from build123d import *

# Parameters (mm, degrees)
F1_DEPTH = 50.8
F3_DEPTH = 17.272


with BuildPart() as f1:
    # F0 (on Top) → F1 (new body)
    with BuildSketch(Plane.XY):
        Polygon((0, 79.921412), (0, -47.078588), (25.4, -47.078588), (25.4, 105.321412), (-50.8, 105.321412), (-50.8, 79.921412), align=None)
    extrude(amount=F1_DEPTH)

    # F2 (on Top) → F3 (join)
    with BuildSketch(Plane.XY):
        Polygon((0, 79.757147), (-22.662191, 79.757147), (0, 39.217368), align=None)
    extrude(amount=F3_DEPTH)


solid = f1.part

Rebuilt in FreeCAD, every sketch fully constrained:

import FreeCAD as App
import Part
import Sketcher

V = App.Vector
Q = App.Units.Quantity


def add_polygon(sketch, points):
    """Adds a closed chain of lines whose ends are joined by coincident constraints."""
    first, n = sketch.GeometryCount, len(points)
    for a, b in zip(points, points[1:] + points[:1]):
        sketch.addGeometry(Part.LineSegment(App.Vector(*a, 0), App.Vector(*b, 0)), False)
    for i in range(n):
        sketch.addConstraint(Sketcher.Constraint("Coincident", first + i, 2, first + (i + 1) % n, 1))

doc = App.newDocument("Part")
body = doc.addObject("PartDesign::Body", "Body")

sketch1 = body.newObject("Sketcher::SketchObject", "Sketch")
sketch1.AttachmentSupport = (doc.getObject("XY_Plane"), [""])
sketch1.MapMode = "FlatFace"
add_polygon(sketch1, [(0, 79.921412), (0, -47.078588), (25.4, -47.078588), (25.4, 105.321412), (-50.8, 105.321412), (-50.8, 79.921412)])
sketch1.addConstraint(Sketcher.Constraint("Vertical", 0))
sketch1.addConstraint(Sketcher.Constraint("Horizontal", 1))
sketch1.addConstraint(Sketcher.Constraint("Vertical", 2))
sketch1.addConstraint(Sketcher.Constraint("Horizontal", 3))
sketch1.addConstraint(Sketcher.Constraint("Vertical", 4))
sketch1.addConstraint(Sketcher.Constraint("Horizontal", 5))
sketch1.addConstraint(Sketcher.Constraint("PointOnObject", 0, 2, -2))
sketch1.addConstraint(Sketcher.Constraint("Equal", 1, 4))
sketch1.addConstraint(Sketcher.Constraint("DistanceX", 1, 1, 1, 2, Q("1 in")))
sketch1.addConstraint(Sketcher.Constraint("DistanceX", 3, 2, 3, 1, Q("3 in")))
sketch1.addConstraint(Sketcher.Constraint("DistanceY", 0, 2, 0, 1, Q("5 in")))
sketch1.addConstraint(Sketcher.Constraint("DistanceY", 0, 2, -1, 1, 47.078588))
pad1 = body.newObject("PartDesign::Pad", "Pad")
pad1.Profile = sketch1
pad1.Length = Q("2 in")

sketch2 = body.newObject("Sketcher::SketchObject", "Sketch001")
sketch2.AttachmentSupport = (doc.getObject("XY_Plane"), [""])
sketch2.MapMode = "FlatFace"
add_polygon(sketch2, [(0, 79.757147), (-22.662191, 79.757147), (0, 39.217368)])
sketch2.addConstraint(Sketcher.Constraint("Horizontal", 0))
sketch2.addConstraint(Sketcher.Constraint("Vertical", 2))
sketch2.addConstraint(Sketcher.Constraint("PointOnObject", 1, 2, -2))
sketch2.addConstraint(Sketcher.Constraint("DistanceX", 0, 2, 0, 1, 22.662191))
sketch2.addConstraint(Sketcher.Constraint("DistanceY", 2, 1, 2, 2, 40.539779))
sketch2.addConstraint(Sketcher.Constraint("DistanceY", -1, 1, 0, 2, 79.757147))
pad2 = body.newObject("PartDesign::Pad", "Pad001")
pad2.Profile = sketch2
pad2.Length = Q("0.68 in")

doc.recompute()
